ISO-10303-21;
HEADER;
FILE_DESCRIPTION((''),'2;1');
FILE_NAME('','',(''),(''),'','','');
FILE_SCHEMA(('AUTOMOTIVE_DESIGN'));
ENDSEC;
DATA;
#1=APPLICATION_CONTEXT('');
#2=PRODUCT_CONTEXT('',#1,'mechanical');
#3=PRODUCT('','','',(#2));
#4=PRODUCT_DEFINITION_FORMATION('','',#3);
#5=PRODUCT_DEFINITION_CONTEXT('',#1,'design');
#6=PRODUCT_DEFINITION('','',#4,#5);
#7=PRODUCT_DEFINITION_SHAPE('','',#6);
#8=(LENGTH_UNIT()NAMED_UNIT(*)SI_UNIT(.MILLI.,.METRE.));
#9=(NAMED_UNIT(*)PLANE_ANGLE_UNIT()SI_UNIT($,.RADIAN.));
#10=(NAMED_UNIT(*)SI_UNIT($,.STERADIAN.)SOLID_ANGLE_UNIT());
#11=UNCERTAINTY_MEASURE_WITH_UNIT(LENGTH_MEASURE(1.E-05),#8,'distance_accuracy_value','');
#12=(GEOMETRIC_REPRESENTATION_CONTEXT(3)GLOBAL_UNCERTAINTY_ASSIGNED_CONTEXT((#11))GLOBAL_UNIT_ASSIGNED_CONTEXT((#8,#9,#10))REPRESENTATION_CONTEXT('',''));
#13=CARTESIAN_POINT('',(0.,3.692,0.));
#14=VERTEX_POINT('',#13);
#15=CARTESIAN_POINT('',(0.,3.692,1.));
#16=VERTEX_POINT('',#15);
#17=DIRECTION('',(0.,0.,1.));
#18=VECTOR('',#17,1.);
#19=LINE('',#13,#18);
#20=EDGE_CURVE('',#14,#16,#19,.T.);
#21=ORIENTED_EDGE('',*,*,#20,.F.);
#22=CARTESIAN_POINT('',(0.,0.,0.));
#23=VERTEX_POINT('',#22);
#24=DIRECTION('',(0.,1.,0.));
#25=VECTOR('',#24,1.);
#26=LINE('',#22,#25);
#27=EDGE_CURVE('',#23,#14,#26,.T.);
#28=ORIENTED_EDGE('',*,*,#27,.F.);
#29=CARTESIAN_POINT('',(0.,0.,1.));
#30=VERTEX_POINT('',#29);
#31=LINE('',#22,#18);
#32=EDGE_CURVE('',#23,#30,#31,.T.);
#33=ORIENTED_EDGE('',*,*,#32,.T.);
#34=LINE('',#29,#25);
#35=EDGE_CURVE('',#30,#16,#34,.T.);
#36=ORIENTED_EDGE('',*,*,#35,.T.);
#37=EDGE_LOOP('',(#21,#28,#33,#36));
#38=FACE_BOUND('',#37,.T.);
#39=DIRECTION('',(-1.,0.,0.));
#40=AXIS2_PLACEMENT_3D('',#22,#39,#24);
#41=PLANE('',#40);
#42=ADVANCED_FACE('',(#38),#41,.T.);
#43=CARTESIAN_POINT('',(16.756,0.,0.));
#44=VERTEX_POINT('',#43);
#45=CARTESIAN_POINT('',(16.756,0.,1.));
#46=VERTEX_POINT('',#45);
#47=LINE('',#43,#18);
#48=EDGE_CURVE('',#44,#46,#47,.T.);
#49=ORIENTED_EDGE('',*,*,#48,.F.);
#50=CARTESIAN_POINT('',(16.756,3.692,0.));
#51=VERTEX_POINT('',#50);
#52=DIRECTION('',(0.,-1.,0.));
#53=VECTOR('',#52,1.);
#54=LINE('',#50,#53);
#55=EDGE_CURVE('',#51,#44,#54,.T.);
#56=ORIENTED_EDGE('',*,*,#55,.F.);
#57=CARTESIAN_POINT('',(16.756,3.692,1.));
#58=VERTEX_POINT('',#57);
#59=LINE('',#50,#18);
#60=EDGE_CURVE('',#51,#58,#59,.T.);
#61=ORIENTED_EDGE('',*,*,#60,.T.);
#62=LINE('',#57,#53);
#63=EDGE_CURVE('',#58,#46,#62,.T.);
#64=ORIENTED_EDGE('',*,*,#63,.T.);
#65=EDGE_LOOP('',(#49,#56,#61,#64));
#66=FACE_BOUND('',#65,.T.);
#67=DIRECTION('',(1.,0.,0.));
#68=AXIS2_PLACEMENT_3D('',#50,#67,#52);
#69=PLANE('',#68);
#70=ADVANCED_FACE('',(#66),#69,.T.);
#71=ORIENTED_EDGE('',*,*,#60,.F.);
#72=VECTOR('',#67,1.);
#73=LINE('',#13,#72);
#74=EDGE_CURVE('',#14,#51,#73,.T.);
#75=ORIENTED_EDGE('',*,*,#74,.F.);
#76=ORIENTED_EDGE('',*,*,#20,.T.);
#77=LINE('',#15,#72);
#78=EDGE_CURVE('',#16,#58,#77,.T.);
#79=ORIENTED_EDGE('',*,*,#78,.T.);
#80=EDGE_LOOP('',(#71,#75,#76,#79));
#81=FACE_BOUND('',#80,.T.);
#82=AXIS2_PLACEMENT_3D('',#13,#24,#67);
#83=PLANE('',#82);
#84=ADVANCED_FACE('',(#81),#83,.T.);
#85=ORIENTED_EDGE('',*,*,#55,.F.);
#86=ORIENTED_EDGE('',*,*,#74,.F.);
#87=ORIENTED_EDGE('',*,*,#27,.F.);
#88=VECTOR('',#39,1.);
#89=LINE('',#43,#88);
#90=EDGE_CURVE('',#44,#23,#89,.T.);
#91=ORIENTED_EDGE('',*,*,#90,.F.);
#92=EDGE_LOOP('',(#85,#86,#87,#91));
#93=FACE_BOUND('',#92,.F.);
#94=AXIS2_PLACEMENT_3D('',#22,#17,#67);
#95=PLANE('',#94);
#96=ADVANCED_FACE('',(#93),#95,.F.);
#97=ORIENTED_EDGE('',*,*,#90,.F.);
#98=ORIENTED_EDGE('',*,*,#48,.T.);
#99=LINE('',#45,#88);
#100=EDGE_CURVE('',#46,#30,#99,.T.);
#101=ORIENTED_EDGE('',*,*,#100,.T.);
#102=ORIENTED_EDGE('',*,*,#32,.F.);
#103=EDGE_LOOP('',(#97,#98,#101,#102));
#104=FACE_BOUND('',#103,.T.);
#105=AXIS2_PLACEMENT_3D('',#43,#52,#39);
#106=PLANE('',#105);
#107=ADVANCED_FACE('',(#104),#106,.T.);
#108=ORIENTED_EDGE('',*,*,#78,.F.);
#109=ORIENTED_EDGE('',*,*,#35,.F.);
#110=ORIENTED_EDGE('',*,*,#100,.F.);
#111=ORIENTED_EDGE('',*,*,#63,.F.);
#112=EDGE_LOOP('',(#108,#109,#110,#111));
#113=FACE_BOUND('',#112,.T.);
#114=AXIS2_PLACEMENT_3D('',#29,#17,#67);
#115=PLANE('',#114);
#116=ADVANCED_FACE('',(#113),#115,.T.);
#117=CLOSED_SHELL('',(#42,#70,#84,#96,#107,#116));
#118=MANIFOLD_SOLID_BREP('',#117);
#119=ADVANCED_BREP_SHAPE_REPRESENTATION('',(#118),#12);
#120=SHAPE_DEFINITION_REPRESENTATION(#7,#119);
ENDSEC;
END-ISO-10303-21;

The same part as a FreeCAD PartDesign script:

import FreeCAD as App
import Part
import Sketcher

V = App.Vector
Q = App.Units.Quantity

doc = App.newDocument("Part")
params = doc.addObject("Spreadsheet::Sheet", "Params")
for row, (alias, value) in enumerate([
    ("pad1_length", "1 mm"),
], start=1):
    params.set(f"A{row}", alias)
    params.set(f"B{row}", "=" + value)
    params.setAlias(f"B{row}", alias)

body = doc.addObject("PartDesign::Body", "Body")

# Sketch on XY plane
sketch1 = body.newObject("Sketcher::SketchObject", "Sketch")
sketch1.AttachmentSupport = (doc.getObject("XY_Plane"), [""])
sketch1.MapMode = "FlatFace"
sketch1.addGeometry(Part.LineSegment(V(16.756, 3.692, 0), V(0, 3.692, 0)), False)
sketch1.addGeometry(Part.LineSegment(V(0, 3.692, 0), V(0, 0, 0)), False)
sketch1.addGeometry(Part.LineSegment(V(0, 0, 0), V(16.756, 0, 0)), False)
sketch1.addGeometry(Part.LineSegment(V(16.756, 0, 0), V(16.756, 3.692, 0)), False)
sketch1.addConstraint(Sketcher.Constraint("Coincident", 0, 2, 1, 1))
sketch1.addConstraint(Sketcher.Constraint("Coincident", 1, 2, 2, 1))
sketch1.addConstraint(Sketcher.Constraint("Coincident", 2, 2, 3, 1))
sketch1.addConstraint(Sketcher.Constraint("Coincident", 3, 2, 0, 1))
sketch1.addConstraint(Sketcher.Constraint("Horizontal", 0))
sketch1.addConstraint(Sketcher.Constraint("Vertical", 1))
sketch1.addConstraint(Sketcher.Constraint("Horizontal", 2))
sketch1.addConstraint(Sketcher.Constraint("Vertical", 3))
sketch1.addConstraint(Sketcher.Constraint("Coincident", 1, 2, -1, 1))
sketch1.addConstraint(Sketcher.Constraint("DistanceX", 0, 2, 0, 1, Q("16.756 mm")))
sketch1.addConstraint(Sketcher.Constraint("DistanceY", 1, 2, 1, 1, Q("3.692 mm")))
pad1 = body.newObject("PartDesign::Pad", "Pad")
pad1.Profile = sketch1
pad1.setExpression("Length", "Params.pad1_length")

doc.recompute()
